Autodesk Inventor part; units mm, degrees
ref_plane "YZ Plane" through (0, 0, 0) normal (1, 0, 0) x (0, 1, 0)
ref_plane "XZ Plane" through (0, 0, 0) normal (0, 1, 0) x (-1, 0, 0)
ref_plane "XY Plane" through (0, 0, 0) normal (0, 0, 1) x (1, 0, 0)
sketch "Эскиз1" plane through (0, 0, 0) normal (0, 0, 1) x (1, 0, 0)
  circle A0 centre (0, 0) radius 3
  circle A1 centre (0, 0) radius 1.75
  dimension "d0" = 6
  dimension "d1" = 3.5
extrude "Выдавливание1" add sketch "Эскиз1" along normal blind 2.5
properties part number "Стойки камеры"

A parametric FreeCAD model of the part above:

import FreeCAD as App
import Part
import Sketcher
from FreeCAD import Vector
Q = App.Units.Quantity

doc = App.newDocument("Part")
body = doc.addObject("PartDesign::Body", "Body")

# Sketch on XY plane
sketch1 = body.newObject("Sketcher::SketchObject", "Sketch")
sketch1.AttachmentSupport = (doc.getObject("XY_Plane"), [""])
sketch1.MapMode = "FlatFace"
sketch1.addGeometry(Part.Circle(Vector(0, 0, 0), Vector(0, 0, 1), 3), False)
sketch1.addGeometry(Part.Circle(Vector(0, 0, 0), Vector(0, 0, 1), 1.75), False)
sketch1.addConstraint(Sketcher.Constraint("Coincident", 0, 3, -1, 1))
sketch1.addConstraint(Sketcher.Constraint("Coincident", 1, 3, -1, 1))
sketch1.addConstraint(Sketcher.Constraint("Diameter", 0, Q("6 mm")))
sketch1.addConstraint(Sketcher.Constraint("Diameter", 1, Q("3.5 mm")))
pad1 = body.newObject("PartDesign::Pad", "Pad")
pad1.Profile = sketch1
pad1.Length = 2.5

doc.recompute()
